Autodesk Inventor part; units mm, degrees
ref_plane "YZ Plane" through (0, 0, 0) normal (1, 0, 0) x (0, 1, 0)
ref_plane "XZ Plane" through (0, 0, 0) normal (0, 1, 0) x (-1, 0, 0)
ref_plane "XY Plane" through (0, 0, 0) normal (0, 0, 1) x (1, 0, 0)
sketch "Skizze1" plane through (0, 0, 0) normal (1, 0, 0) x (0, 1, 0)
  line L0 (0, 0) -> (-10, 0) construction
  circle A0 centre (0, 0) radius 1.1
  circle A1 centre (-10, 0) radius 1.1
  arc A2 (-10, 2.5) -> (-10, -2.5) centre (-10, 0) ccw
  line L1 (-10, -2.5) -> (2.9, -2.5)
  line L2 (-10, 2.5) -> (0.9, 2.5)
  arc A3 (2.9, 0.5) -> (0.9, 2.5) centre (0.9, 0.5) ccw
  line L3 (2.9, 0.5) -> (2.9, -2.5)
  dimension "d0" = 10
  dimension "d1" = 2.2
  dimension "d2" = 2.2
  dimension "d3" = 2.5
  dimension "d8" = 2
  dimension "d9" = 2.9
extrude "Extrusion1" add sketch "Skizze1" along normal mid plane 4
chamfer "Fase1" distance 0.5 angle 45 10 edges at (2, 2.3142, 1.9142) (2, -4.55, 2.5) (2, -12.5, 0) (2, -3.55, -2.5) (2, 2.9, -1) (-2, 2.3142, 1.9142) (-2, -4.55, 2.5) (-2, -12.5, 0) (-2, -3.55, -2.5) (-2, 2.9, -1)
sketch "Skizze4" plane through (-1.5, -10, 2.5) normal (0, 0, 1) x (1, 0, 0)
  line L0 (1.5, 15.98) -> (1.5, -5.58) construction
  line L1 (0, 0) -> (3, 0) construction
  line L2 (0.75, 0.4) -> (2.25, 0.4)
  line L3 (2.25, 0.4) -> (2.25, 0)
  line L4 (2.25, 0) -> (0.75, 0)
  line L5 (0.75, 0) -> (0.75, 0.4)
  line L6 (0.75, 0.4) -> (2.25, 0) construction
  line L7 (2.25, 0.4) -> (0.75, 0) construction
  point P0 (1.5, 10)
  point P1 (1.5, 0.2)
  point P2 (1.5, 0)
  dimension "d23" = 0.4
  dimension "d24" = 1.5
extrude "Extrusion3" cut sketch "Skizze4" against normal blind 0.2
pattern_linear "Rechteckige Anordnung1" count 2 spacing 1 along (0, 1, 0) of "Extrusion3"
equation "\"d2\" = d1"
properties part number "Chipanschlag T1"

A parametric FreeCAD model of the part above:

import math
import FreeCAD as App
import Part
import Sketcher
from FreeCAD import Vector


def edges_at(feature, points):
    """Names of the edges that pass closest to the given points."""
    edges = feature.Shape.Edges
    near = lambda p: min(range(len(edges)), key=lambda i: edges[i].distToShape(Part.Vertex(*p))[0])
    return sorted({f"Edge{near(p) + 1}" for p in points})


def add_polygon(sketch, points):
    """Adds a closed chain of lines whose ends are joined by coincident constraints."""
    first, n = sketch.GeometryCount, len(points)
    for a, b in zip(points, points[1:] + points[:1]):
        sketch.addGeometry(Part.LineSegment(App.Vector(*a, 0), App.Vector(*b, 0)), False)
    for i in range(n):
        sketch.addConstraint(Sketcher.Constraint("Coincident", first + i, 2, first + (i + 1) % n, 1))

doc = App.newDocument("Part")
body = doc.addObject("PartDesign::Body", "Body")

sketch1 = body.newObject("Sketcher::SketchObject", "Sketch")
sketch1.AttachmentSupport = (doc.getObject("YZ_Plane"), [""])
sketch1.MapMode = "FlatFace"
sketch1.addGeometry([
    Part.LineSegment(Vector(0.9, 2.5, 0), Vector(-10, 2.5, 0)),
    Part.ArcOfCircle(Part.Circle(Vector(-10, 0, 0), Vector(0, 0, 1), 2.5), math.radians(90), math.radians(270)),
    Part.LineSegment(Vector(-10, -2.5, 0), Vector(2.9, -2.5, 0)),
    Part.LineSegment(Vector(2.9, -2.5, 0), Vector(2.9, 0.5, 0)),
    Part.ArcOfCircle(Part.Circle(Vector(0.9, 0.5, 0), Vector(0, 0, 1), 2), math.radians(0), math.radians(90)),
    Part.Circle(Vector(-10, 0, 0), Vector(0, 0, 1), 1.1),
    Part.Circle(Vector(0, 0, 0), Vector(0, 0, 1), 1.1),
], False)
sketch1.addConstraint([
    Sketcher.Constraint("Tangent", 0, 2, 1, 1),
    Sketcher.Constraint("Tangent", 1, 2, 2, 1),
    Sketcher.Constraint("Coincident", 2, 2, 3, 1),
    Sketcher.Constraint("Tangent", 3, 2, 4, 1),
    Sketcher.Constraint("Tangent", 4, 2, 0, 1),
    Sketcher.Constraint("Horizontal", 0),
    Sketcher.Constraint("Horizontal", 2),
    Sketcher.Constraint("Vertical", 3),
    Sketcher.Constraint("Coincident", 6, 3, -1, 1),
    Sketcher.Constraint("Coincident", 5, 3, 1, 3),
    Sketcher.Constraint("Equal", 5, 6),
    Sketcher.Constraint("PointOnObject", 1, 3, -1),
    Sketcher.Constraint("Radius", 4, 2.0),
    Sketcher.Constraint("Diameter", 5, 2.2),
    Sketcher.Constraint("Radius", 1, 2.5),
    Sketcher.Constraint("DistanceX", 1, 3, -1, 1, 10.0),
    Sketcher.Constraint("DistanceX", -1, 1, 2, 2, 2.9),
])
pad1 = body.newObject("PartDesign::Pad", "Pad")
pad1.Profile = sketch1
pad1.Length = 4
pad1.Midplane = True
doc.recompute()

chamfer = body.newObject("PartDesign::Chamfer", "Chamfer")
chamfer.Base = (pad1, edges_at(pad1, [
    (2, 2.314, 1.914),
    (2, -4.55, 2.5),
    (2, -12.5, 0),
    (2, -3.55, -2.5),
    (2, 2.9, -1),
    (-2, 2.314, 1.914),
    (-2, -4.55, 2.5),
    (-2, -12.5, 0),
    (-2, -3.55, -2.5),
    (-2, 2.9, -1),
]))
chamfer.Size = 0.5

sketch2 = body.newObject("Sketcher::SketchObject", "Sketch001")
sketch2.AttachmentSupport = (doc.getObject("XY_Plane"), [""])
sketch2.MapMode = "FlatFace"
sketch2.AttachmentOffset = App.Placement(Vector(0, 0, 2.5), App.Rotation())
add_polygon(sketch2, [(0.75, -9.6), (-0.75, -9.6), (-0.75, -10), (0.75, -10)])
sketch2.addConstraint([
    Sketcher.Constraint("Horizontal", 0),
    Sketcher.Constraint("Vertical", 1),
    Sketcher.Constraint("Horizontal", 2),
    Sketcher.Constraint("Vertical", 3),
    Sketcher.Constraint("DistanceX", 0, 2, 0, 1, 1.5),
    Sketcher.Constraint("DistanceY", 1, 2, 1, 1, 0.4),
    Sketcher.Constraint("DistanceY", 1, 2, -1, 1, 10.0),
    Sketcher.Constraint("DistanceX", 0, 2, -1, 1, 0.75),
])
pocket1 = body.newObject("PartDesign::Pocket", "Pocket")
pocket1.Profile = sketch2
pocket1.Length = 0.2
doc.recompute()

linearpattern = body.newObject("PartDesign::LinearPattern", "LinearPattern")
linearpattern.Originals = [pocket1]
linearpattern.Direction = (doc.getObject("Y_Axis"), [""])
linearpattern.Mode = "offset"
linearpattern.Offset = 1
linearpattern.Occurrences = 2
body.Tip = linearpattern

doc.recompute()
